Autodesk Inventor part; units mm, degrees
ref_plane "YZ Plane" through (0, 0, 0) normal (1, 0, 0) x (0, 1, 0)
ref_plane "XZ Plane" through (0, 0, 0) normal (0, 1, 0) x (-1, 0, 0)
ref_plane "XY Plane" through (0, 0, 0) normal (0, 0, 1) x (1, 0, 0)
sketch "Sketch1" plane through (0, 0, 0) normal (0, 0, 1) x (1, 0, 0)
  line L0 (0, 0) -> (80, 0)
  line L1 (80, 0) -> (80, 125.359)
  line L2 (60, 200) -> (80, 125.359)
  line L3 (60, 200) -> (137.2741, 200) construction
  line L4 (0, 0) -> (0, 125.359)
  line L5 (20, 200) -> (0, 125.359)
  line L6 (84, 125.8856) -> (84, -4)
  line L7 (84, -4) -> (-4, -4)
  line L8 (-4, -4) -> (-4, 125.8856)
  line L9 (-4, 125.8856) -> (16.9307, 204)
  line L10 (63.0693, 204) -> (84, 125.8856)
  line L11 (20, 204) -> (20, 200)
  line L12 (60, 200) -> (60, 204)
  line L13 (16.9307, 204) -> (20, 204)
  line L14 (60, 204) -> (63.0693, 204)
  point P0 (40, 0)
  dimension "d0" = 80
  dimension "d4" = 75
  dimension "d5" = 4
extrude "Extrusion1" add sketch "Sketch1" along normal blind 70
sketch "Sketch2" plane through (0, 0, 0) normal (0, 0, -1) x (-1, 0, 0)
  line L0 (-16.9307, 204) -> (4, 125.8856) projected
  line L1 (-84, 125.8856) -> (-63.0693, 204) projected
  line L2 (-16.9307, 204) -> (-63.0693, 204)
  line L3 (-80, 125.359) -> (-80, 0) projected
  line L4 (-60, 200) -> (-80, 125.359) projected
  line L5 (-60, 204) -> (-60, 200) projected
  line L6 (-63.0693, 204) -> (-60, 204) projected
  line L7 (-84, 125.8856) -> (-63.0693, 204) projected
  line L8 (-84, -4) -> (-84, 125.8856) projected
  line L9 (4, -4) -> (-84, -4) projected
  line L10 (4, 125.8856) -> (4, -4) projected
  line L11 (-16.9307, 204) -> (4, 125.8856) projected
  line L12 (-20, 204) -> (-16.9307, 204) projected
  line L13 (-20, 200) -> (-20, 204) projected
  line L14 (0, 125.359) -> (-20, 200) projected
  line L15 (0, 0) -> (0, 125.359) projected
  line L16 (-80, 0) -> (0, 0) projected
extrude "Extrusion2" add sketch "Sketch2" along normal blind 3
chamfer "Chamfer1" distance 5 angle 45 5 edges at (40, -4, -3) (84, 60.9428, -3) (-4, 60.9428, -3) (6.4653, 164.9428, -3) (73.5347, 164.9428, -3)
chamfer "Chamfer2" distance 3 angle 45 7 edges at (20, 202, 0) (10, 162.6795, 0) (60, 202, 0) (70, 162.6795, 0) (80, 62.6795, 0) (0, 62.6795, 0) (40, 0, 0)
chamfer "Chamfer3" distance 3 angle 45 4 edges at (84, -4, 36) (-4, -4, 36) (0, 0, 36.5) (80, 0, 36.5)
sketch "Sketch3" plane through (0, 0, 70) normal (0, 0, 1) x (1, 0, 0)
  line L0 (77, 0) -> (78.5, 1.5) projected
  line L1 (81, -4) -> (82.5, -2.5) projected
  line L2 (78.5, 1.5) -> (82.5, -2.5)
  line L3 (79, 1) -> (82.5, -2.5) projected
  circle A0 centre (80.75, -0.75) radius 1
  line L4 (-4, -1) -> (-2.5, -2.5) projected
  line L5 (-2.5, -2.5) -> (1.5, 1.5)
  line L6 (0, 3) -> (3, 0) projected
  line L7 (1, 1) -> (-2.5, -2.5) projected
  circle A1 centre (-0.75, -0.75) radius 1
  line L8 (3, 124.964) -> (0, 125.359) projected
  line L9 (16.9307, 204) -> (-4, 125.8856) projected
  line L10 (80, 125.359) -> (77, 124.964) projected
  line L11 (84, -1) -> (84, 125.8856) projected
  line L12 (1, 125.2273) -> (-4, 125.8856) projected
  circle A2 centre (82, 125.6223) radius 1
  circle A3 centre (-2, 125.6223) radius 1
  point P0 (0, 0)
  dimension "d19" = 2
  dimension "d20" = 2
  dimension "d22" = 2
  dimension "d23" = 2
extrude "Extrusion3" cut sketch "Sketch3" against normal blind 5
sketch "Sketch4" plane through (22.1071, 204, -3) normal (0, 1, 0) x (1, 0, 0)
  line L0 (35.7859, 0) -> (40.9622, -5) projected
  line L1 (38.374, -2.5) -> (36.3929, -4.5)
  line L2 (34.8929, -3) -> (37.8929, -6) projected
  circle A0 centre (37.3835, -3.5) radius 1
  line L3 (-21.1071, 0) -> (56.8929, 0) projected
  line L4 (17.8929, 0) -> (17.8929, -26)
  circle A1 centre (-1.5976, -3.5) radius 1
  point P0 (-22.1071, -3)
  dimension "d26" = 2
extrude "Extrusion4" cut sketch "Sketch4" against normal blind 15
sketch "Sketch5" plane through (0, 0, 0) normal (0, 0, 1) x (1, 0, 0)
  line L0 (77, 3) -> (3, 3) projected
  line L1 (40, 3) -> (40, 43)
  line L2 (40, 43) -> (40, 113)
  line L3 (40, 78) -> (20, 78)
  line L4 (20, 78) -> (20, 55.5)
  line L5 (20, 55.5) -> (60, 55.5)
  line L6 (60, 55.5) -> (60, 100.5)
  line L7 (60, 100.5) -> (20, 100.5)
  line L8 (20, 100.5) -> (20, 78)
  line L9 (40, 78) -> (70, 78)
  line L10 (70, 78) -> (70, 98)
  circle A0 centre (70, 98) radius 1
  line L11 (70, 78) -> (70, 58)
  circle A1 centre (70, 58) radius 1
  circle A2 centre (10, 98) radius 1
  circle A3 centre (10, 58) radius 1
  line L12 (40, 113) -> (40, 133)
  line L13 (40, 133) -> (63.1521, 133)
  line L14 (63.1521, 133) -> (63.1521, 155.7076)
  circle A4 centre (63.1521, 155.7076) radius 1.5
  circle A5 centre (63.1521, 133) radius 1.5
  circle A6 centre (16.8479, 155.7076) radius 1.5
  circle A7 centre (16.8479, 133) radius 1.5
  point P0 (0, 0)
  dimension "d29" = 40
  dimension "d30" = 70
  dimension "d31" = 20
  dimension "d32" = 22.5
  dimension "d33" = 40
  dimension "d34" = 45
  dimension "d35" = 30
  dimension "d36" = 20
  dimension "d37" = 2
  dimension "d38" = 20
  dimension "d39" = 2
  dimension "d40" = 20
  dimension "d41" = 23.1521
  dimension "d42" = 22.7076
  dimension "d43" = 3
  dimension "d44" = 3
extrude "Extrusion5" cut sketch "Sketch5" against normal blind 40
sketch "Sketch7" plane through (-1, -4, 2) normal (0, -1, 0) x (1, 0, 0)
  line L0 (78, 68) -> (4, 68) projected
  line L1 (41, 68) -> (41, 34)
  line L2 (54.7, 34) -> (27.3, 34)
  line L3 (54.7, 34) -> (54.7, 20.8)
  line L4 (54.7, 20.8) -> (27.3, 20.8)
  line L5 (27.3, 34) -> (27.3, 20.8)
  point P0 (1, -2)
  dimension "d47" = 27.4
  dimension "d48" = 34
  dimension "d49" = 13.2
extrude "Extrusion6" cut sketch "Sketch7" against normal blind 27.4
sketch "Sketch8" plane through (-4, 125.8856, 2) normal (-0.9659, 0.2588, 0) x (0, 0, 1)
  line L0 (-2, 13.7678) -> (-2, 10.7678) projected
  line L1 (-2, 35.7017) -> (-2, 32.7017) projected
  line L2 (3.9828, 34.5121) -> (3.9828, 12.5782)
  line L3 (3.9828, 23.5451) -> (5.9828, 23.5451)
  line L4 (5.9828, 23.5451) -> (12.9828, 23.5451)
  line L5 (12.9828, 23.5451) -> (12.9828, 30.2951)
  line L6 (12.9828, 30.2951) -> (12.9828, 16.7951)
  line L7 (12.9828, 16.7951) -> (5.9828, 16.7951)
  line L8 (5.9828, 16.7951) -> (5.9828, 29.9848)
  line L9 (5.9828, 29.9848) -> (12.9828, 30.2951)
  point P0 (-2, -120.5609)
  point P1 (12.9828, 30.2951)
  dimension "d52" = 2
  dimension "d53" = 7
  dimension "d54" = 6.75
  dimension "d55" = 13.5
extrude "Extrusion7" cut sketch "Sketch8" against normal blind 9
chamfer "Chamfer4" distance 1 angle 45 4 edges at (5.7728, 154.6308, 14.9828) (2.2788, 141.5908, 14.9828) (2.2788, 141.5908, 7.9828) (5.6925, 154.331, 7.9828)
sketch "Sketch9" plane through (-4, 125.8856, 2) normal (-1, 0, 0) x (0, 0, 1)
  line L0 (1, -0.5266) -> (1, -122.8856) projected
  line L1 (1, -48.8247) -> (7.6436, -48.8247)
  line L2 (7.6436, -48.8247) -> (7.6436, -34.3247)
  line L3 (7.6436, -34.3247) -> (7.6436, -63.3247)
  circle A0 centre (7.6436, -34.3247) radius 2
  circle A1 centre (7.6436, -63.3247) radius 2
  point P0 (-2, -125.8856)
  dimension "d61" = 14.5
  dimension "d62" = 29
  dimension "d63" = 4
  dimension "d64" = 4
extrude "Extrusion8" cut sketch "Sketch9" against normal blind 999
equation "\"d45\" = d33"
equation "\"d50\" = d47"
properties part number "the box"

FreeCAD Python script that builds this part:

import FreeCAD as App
import Part
import Sketcher

V = App.Vector
Q = App.Units.Quantity


def edges_at(feature, points):
    """Names of the edges that pass closest to the given points."""
    edges = feature.Shape.Edges
    near = lambda p: min(range(len(edges)), key=lambda i: edges[i].distToShape(Part.Vertex(*p))[0])
    return sorted({f"Edge{near(p) + 1}" for p in points})

doc = App.newDocument("Part")
params = doc.addObject("Spreadsheet::Sheet", "Params")
for row, (alias, value) in enumerate([
    ("sketch1_width", "80 mm"),
    ("sketch1_height", "4 mm"),
    ("sketch1_length", "80.87 mm"),
    ("pad1_length", "70 mm"),
    ("sketch2_width", "88 mm"),
    ("sketch2_length", "80.87 mm"),
    ("pad2_length", "3 mm"),
    ("chamfer_size", "5 mm"),
    ("chamfer2_size", "3 mm"),
    ("chamfer3_size", "3 mm"),
    ("sketch3_diameter", "2 mm"),
    ("pocket1_length", "5 mm"),
    ("sketch4_diameter", "2 mm"),
    ("pocket2_length", "15 mm"),
    ("sketch5_diameter", "3 mm"),
    ("sketch5_diameter2", "2 mm"),
    ("sketch5_width", "40 mm"),
    ("sketch5_height", "45 mm"),
    ("pocket3_length", "40 mm"),
    ("sketch6_width", "27.4 mm"),
    ("sketch6_height", "13.2 mm"),
    ("pocket4_length", "27.4 mm"),
    ("sketch7_width", "7 mm"),
    ("sketch7_height", "13.5 mm"),
    ("pocket5_length", "9 mm"),
    ("chamfer4_size", "1 mm"),
    ("sketch8_diameter", "4 mm"),
    ("pocket6_length", "999 mm"),
], start=1):
    params.set(f"A{row}", alias)
    params.set(f"B{row}", "=" + value)
    params.setAlias(f"B{row}", alias)

body = doc.addObject("PartDesign::Body", "Body")

# Sketch on XY plane
sketch1 = body.newObject("Sketcher::SketchObject", "Sketch")
sketch1.AttachmentSupport = (doc.getObject("XY_Plane"), [""])
sketch1.MapMode = "FlatFace"
sketch1.addGeometry([
    Part.LineSegment(V(80, 0, 0), V(0, 0, 0)),  # 0
    Part.LineSegment(V(0, 0, 0), V(0, 125.4, 0)),  # 1
    Part.LineSegment(V(0, 125.4, 0), V(20, 200, 0)),  # 2
    Part.LineSegment(V(20, 200, 0), V(20, 204, 0)),  # 3
    Part.LineSegment(V(20, 204, 0), V(16.9, 204, 0)),  # 4
    Part.LineSegment(V(16.9, 204, 0), V(-4, 125.9, 0)),  # 5
    Part.LineSegment(V(-4, 125.9, 0), V(-4, -4, 0)),  # 6
    Part.LineSegment(V(-4, -4, 0), V(84, -4, 0)),  # 7
    Part.LineSegment(V(84, -4, 0), V(84, 125.9, 0)),  # 8
    Part.LineSegment(V(84, 125.9, 0), V(63.1, 204, 0)),  # 9
    Part.LineSegment(V(63.1, 204, 0), V(60, 204, 0)),  # 10
    Part.LineSegment(V(60, 204, 0), V(60, 200, 0)),  # 11
    Part.LineSegment(V(60, 200, 0), V(80, 125.4, 0)),  # 12
    Part.LineSegment(V(80, 125.4, 0), V(80, 0, 0)),  # 13
], False)
sketch1.addConstraint([
    Sketcher.Constraint("Coincident", 0, 2, 1, 1),
    Sketcher.Constraint("Coincident", 1, 2, 2, 1),
    Sketcher.Constraint("Coincident", 2, 2, 3, 1),
    Sketcher.Constraint("Coincident", 3, 2, 4, 1),
    Sketcher.Constraint("Coincident", 4, 2, 5, 1),
    Sketcher.Constraint("Coincident", 5, 2, 6, 1),
    Sketcher.Constraint("Coincident", 6, 2, 7, 1),
    Sketcher.Constraint("Coincident", 7, 2, 8, 1),
    Sketcher.Constraint("Coincident", 8, 2, 9, 1),
    Sketcher.Constraint("Coincident", 9, 2, 10, 1),
    Sketcher.Constraint("Coincident", 10, 2, 11, 1),
    Sketcher.Constraint("Coincident", 11, 2, 12, 1),
    Sketcher.Constraint("Coincident", 12, 2, 13, 1),
    Sketcher.Constraint("Coincident", 13, 2, 0, 1),
    Sketcher.Constraint("Horizontal", 0),
    Sketcher.Constraint("Vertical", 1),
    Sketcher.Constraint("Vertical", 3),
    Sketcher.Constraint("Horizontal", 4),
    Sketcher.Constraint("Vertical", 6),
    Sketcher.Constraint("Horizontal", 7),
    Sketcher.Constraint("Vertical", 8),
    Sketcher.Constraint("Horizontal", 10),
    Sketcher.Constraint("Vertical", 11),
    Sketcher.Constraint("Vertical", 13),
    Sketcher.Constraint("Coincident", 0, 2, -1, 1),
    Sketcher.Constraint("Parallel", 2, 5),
    Sketcher.Constraint("Parallel", 9, 12),
    Sketcher.Constraint("Horizontal", 5, 2, 8, 2),
    Sketcher.Constraint("Horizontal", 4, 2, 9, 2),
    Sketcher.Constraint("Horizontal", 2, 2, 11, 2),
    Sketcher.Constraint("Horizontal", 1, 2, 12, 2),
    Sketcher.Constraint("Equal", 4, 10),
    Sketcher.Constraint("Equal", 5, 9),
    Sketcher.Constraint("DistanceX", 0, 2, 0, 1, 80.0),
    Sketcher.Constraint("DistanceY", 3, 1, 3, 2, 4.0),
    Sketcher.Constraint("Angle", 2, Q("75 deg")),
    Sketcher.Constraint("DistanceX", 5, 2, -1, 1, 4.0),
    Sketcher.Constraint("DistanceY", 6, 2, -1, 1, 4.0),
    Sketcher.Constraint("DistanceX", -1, 1, 2, 2, 20.0),
    Sketcher.Constraint("DistanceY", -1, 1, 2, 2, 200.0),
    Sketcher.Constraint("Distance", 5, 80.87),
])
sketch1.setExpression("Constraints[33]", "Params.sketch1_width")
sketch1.setExpression("Constraints[34]", "Params.sketch1_height")
sketch1.setExpression("Constraints[40]", "Params.sketch1_length")
pad1 = body.newObject("PartDesign::Pad", "Pad")
pad1.Profile = sketch1
pad1.setExpression("Length", "Params.pad1_length")

# Sketch on XY plane
sketch2 = body.newObject("Sketcher::SketchObject", "Sketch001")
sketch2.AttachmentSupport = (doc.getObject("XY_Plane"), [""])
sketch2.MapMode = "FlatFace"
sketch2.addGeometry([
    Part.LineSegment(V(-4, 126, 0), V(17, 204, 0)),  # 0
    Part.LineSegment(V(17, 204, 0), V(63, 204, 0)),  # 1
    Part.LineSegment(V(63, 204, 0), V(84, 126, 0)),  # 2
    Part.LineSegment(V(84, 126, 0), V(84, -4, 0)),  # 3
    Part.LineSegment(V(84, -4, 0), V(-4, -4, 0)),  # 4
    Part.LineSegment(V(-4, -4, 0), V(-4, 126, 0)),  # 5
], False)
sketch2.addConstraint([
    Sketcher.Constraint("Coincident", 0, 2, 1, 1),
    Sketcher.Constraint("Coincident", 1, 2, 2, 1),
    Sketcher.Constraint("Coincident", 2, 2, 3, 1),
    Sketcher.Constraint("Coincident", 3, 2, 4, 1),
    Sketcher.Constraint("Coincident", 4, 2, 5, 1),
    Sketcher.Constraint("Coincident", 5, 2, 0, 1),
    Sketcher.Constraint("Horizontal", 1),
    Sketcher.Constraint("Vertical", 3),
    Sketcher.Constraint("Horizontal", 4),
    Sketcher.Constraint("Vertical", 5),
    Sketcher.Constraint("Horizontal", 2, 2, 5, 2),
    Sketcher.Constraint("Equal", 0, 2),
    Sketcher.Constraint("DistanceX", 4, 2, 4, 1, 88.0),
    Sketcher.Constraint("Angle", 0, Q("75 deg")),
    Sketcher.Constraint("DistanceY", -1, 1, 0, 2, 204.0),
    Sketcher.Constraint("DistanceX", -1, 1, 2, 2, 84.0),
    Sketcher.Constraint("DistanceY", 3, 2, -1, 1, 4.0),
    Sketcher.Constraint("Distance", 0, 80.87),
])
sketch2.setExpression("Constraints[12]", "Params.sketch2_width")
sketch2.setExpression("Constraints[17]", "Params.sketch2_length")
pad2 = body.newObject("PartDesign::Pad", "Pad001")
pad2.Profile = sketch2
pad2.setExpression("Length", "Params.pad2_length")
pad2.Reversed = True
doc.recompute()

chamfer = body.newObject("PartDesign::Chamfer", "Chamfer")
chamfer.Base = (pad2, edges_at(pad2, [
    (40, -4, -3),
    (84, 60.943, -3),
    (-4, 60.943, -3),
    (6.465, 164.943, -3),
    (73.535, 164.943, -3),
]))
chamfer.setExpression("Size", "Params.chamfer_size")
doc.recompute()

chamfer2 = body.newObject("PartDesign::Chamfer", "Chamfer001")
chamfer2.Base = (chamfer, edges_at(chamfer, [
    (20, 202, 0),
    (10, 162.679, 0),
    (60, 202, 0),
    (70, 162.679, 0),
    (80, 62.679, 0),
    (0, 62.679, 0),
    (40, 0, 0),
]))
chamfer2.setExpression("Size", "Params.chamfer2_size")
doc.recompute()

chamfer3 = body.newObject("PartDesign::Chamfer", "Chamfer002")
chamfer3.Base = (chamfer2, edges_at(chamfer2, [
    (84, -4, 36),
    (-4, -4, 36),
    (0, 0, 36.5),
    (80, 0, 36.5),
]))
chamfer3.setExpression("Size", "Params.chamfer3_size")

# Sketch on XY plane
sketch3 = body.newObject("Sketcher::SketchObject", "Sketch002")
sketch3.AttachmentSupport = (doc.getObject("XY_Plane"), [""])
sketch3.MapMode = "FlatFace"
sketch3.AttachmentOffset = App.Placement(V(0, 0, 70), App.Rotation())
sketch3.addGeometry([
    Part.Circle(V(80.8, -0.8, 0), V(0, 0, 1), 1),
    Part.Circle(V(-0.8, -0.8, 0), V(0, 0, 1), 1),
    Part.Circle(V(-2, 125.6, 0), V(0, 0, 1), 1),
    Part.Circle(V(82, 125.6, 0), V(0, 0, 1), 1),
], False)
sketch3.addConstraint([
    Sketcher.Constraint("Equal", 0, 1),
    Sketcher.Constraint("Equal", 1, 2),
    Sketcher.Constraint("Equal", 2, 3),
    Sketcher.Constraint("Horizontal", 0, 3, 1, 3),
    Sketcher.Constraint("Horizontal", 2, 3, 3, 3),
    Sketcher.Constraint("Diameter", 0, 2.0),
    Sketcher.Constraint("DistanceX", 2, 3, -1, 1, 2.0),
    Sketcher.Constraint("DistanceX", -1, 1, 3, 3, 82.0),
    Sketcher.Constraint("DistanceX", 1, 3, 0, 3, 81.5),
    Sketcher.Constraint("DistanceX", -1, 1, 0, 3, 80.75),
    Sketcher.Constraint("DistanceY", 0, 3, -1, 1, 0.75),
    Sketcher.Constraint("DistanceY", -1, 1, 2, 3, 125.6223),
])
sketch3.setExpression("Constraints[5]", "Params.sketch3_diameter")
pocket1 = body.newObject("PartDesign::Pocket", "Pocket")
pocket1.Profile = sketch3
pocket1.setExpression("Length", "Params.pocket1_length")

# Sketch on XZ plane
sketch4 = body.newObject("Sketcher::SketchObject", "Sketch003")
sketch4.AttachmentSupport = (doc.getObject("XZ_Plane"), [""])
sketch4.MapMode = "FlatFace"
sketch4.AttachmentOffset = App.Placement(V(0, 0, -204), App.Rotation())
sketch4.addGeometry([
    Part.Circle(V(59.5, 0.5, 0), V(0, 0, 1), 1),
    Part.Circle(V(20.5, 0.5, 0), V(0, 0, 1), 1),
], False)
sketch4.addConstraint([
    Sketcher.Constraint("Equal", 0, 1),
    Sketcher.Constraint("Horizontal", 0, 3, 1, 3),
    Sketcher.Constraint("Diameter", 0, 2.0),
    Sketcher.Constraint("DistanceY", -1, 1, 0, 3, 0.5),
    Sketcher.Constraint("DistanceX", 1, 3, 0, 3, 38.981),
    Sketcher.Constraint("DistanceX", -1, 1, 0, 3, 59.4906),
])
sketch4.setExpression("Constraints[2]", "Params.sketch4_diameter")
pocket2 = body.newObject("PartDesign::Pocket", "Pocket001")
pocket2.Profile = sketch4
pocket2.setExpression("Length", "Params.pocket2_length")
pocket2.Reversed = True

# Sketch on XY plane
sketch5 = body.newObject("Sketcher::SketchObject", "Sketch004")
sketch5.AttachmentSupport = (doc.getObject("XY_Plane"), [""])
sketch5.MapMode = "FlatFace"
sketch5.addGeometry([
    Part.LineSegment(V(20, 55.5, 0), V(60, 55.5, 0)),  # 0
    Part.LineSegment(V(60, 55.5, 0), V(60, 100.5, 0)),  # 1
    Part.LineSegment(V(60, 100.5, 0), V(20, 100.5, 0)),  # 2
    Part.LineSegment(V(20, 100.5, 0), V(20, 55.5, 0)),  # 3
    Part.Circle(V(63.2, 155.7, 0), V(0, 0, 1), 1.5),  # 4
    Part.Circle(V(63.2, 133, 0), V(0, 0, 1), 1.5),  # 5
    Part.Circle(V(70, 98, 0), V(0, 0, 1), 1),  # 6
    Part.Circle(V(70, 58, 0), V(0, 0, 1), 1),  # 7
    Part.Circle(V(10, 98, 0), V(0, 0, 1), 1),  # 8
    Part.Circle(V(10, 58, 0), V(0, 0, 1), 1),  # 9
    Part.Circle(V(16.8, 155.7, 0), V(0, 0, 1), 1.5),  # 10
    Part.Circle(V(16.8, 133, 0), V(0, 0, 1), 1.5),  # 11
], False)
sketch5.addConstraint([
    Sketcher.Constraint("Coincident", 0, 2, 1, 1),
    Sketcher.Constraint("Coincident", 1, 2, 2, 1),
    Sketcher.Constraint("Coincident", 2, 2, 3, 1),
    Sketcher.Constraint("Coincident", 3, 2, 0, 1),
    Sketcher.Constraint("Horizontal", 0),
    Sketcher.Constraint("Vertical", 1),
    Sketcher.Constraint("Horizontal", 2),
    Sketcher.Constraint("Vertical", 3),
    Sketcher.Constraint("Equal", 4, 5),
    Sketcher.Constraint("Equal", 6, 7),
    Sketcher.Constraint("Equal", 7, 8),
    Sketcher.Constraint("Equal", 8, 9),
    Sketcher.Constraint("Equal", 5, 10),
    Sketcher.Constraint("Equal", 10, 11),
    Sketcher.Constraint("Horizontal", 6, 3, 8, 3),
    Sketcher.Constraint("Horizontal", 7, 3, 9, 3),
    Sketcher.Constraint("Horizontal", 4, 3, 10, 3),
    Sketcher.Constraint("Horizontal", 5, 3, 11, 3),
    Sketcher.Constraint("Vertical", 4, 3, 5, 3),
    Sketcher.Constraint("Vertical", 6, 3, 7, 3),
    Sketcher.Constraint("Vertical", 8, 3, 9, 3),
    Sketcher.Constraint("Vertical", 10, 3, 11, 3),
    Sketcher.Constraint("Diameter", 4, 3.0),
    Sketcher.Constraint("Diameter", 6, 2.0),
    Sketcher.Constraint("DistanceX", 0, 1, 0, 2, 40.0),
    Sketcher.Constraint("DistanceY", 1, 1, 1, 2, 45.0),
    Sketcher.Constraint("DistanceX", -1, 1, 6, 3, 70.0),
    Sketcher.Constraint("DistanceX", -1, 1, 2, 2, 20.0),
    Sketcher.Constraint("DistanceY", 7, 3, 6, 3, 40.0),
    Sketcher.Constraint("DistanceY", -1, 1, 5, 3, 133.0),
    Sketcher.Constraint("DistanceY", -1, 1, 6, 3, 98.0),
    Sketcher.Constraint("DistanceX", -1, 1, 8, 3, 10.0),
    Sketcher.Constraint("DistanceY", -1, 1, 0, 2, 55.5),
    Sketcher.Constraint("DistanceY", 5, 3, 4, 3, 22.7076),
    Sketcher.Constraint("DistanceX", -1, 1, 4, 3, 63.152),
    Sketcher.Constraint("DistanceX", -1, 1, 10, 3, 16.848),
])
sketch5.setExpression("Constraints[22]", "Params.sketch5_diameter")
sketch5.setExpression("Constraints[23]", "Params.sketch5_diameter2")
sketch5.setExpression("Constraints[24]", "Params.sketch5_width")
sketch5.setExpression("Constraints[25]", "Params.sketch5_height")
pocket3 = body.newObject("PartDesign::Pocket", "Pocket002")
pocket3.Profile = sketch5
pocket3.setExpression("Length", "Params.pocket3_length")

# Sketch on XZ plane
sketch6 = body.newObject("Sketcher::SketchObject", "Sketch005")
sketch6.AttachmentSupport = (doc.getObject("XZ_Plane"), [""])
sketch6.MapMode = "FlatFace"
sketch6.AttachmentOffset = App.Placement(V(0, 0, 4), App.Rotation())
sketch6.addGeometry([
    Part.LineSegment(V(54, 23, 0), V(54, 36, 0)),
    Part.LineSegment(V(54, 36, 0), V(26, 36, 0)),
    Part.LineSegment(V(26, 36, 0), V(26, 23, 0)),
    Part.LineSegment(V(26, 23, 0), V(54, 23, 0)),
], False)
sketch6.addConstraint([
    Sketcher.Constraint("Coincident", 0, 2, 1, 1),
    Sketcher.Constraint("Coincident", 1, 2, 2, 1),
    Sketcher.Constraint("Coincident", 2, 2, 3, 1),
    Sketcher.Constraint("Coincident", 3, 2, 0, 1),
    Sketcher.Constraint("Vertical", 0),
    Sketcher.Constraint("Horizontal", 1),
    Sketcher.Constraint("Vertical", 2),
    Sketcher.Constraint("Horizontal", 3),
    Sketcher.Constraint("DistanceX", 1, 2, 1, 1, 27.4),
    Sketcher.Constraint("DistanceY", 0, 1, 0, 2, 13.2),
    Sketcher.Constraint("DistanceY", -1, 1, 0, 2, 36.0),
    Sketcher.Constraint("DistanceX", -1, 1, 0, 2, 53.7),
])
sketch6.setExpression("Constraints[8]", "Params.sketch6_width")
sketch6.setExpression("Constraints[9]", "Params.sketch6_height")
pocket4 = body.newObject("PartDesign::Pocket", "Pocket003")
pocket4.Profile = sketch6
pocket4.setExpression("Length", "Params.pocket4_length")

# Sketch on an angled plane
sketch7 = body.newObject("Sketcher::SketchObject", "Sketch006")
sketch7.Placement = App.Placement(V(-4, 125.8856, 2), App.Rotation(V(0, 0, 1), V(0.258819045, 0.965925826, 0), V(-0.965925826, 0.258819045, 0), "ZXY"))
sketch7.addGeometry([
    Part.LineSegment(V(6, 30, 0), V(6, 17, 0)),
    Part.LineSegment(V(6, 17, 0), V(13, 17, 0)),
    Part.LineSegment(V(13, 17, 0), V(13, 30, 0)),
    Part.LineSegment(V(13, 30, 0), V(6, 30, 0)),
], False)
sketch7.addConstraint([
    Sketcher.Constraint("Coincident", 0, 2, 1, 1),
    Sketcher.Constraint("Coincident", 1, 2, 2, 1),
    Sketcher.Constraint("Coincident", 2, 2, 3, 1),
    Sketcher.Constraint("Coincident", 3, 2, 0, 1),
    Sketcher.Constraint("Vertical", 0),
    Sketcher.Constraint("Horizontal", 1),
    Sketcher.Constraint("Vertical", 2),
    Sketcher.Constraint("DistanceX", 1, 1, 1, 2, 7.0),
    Sketcher.Constraint("DistanceY", 2, 1, 2, 2, 13.5),
    Sketcher.Constraint("DistanceY", 0, 2, 0, 1, 13.1897),
    Sketcher.Constraint("DistanceY", -1, 1, 0, 2, 16.795),
    Sketcher.Constraint("DistanceX", -1, 1, 0, 2, 5.9828),
])
sketch7.setExpression("Constraints[7]", "Params.sketch7_width")
sketch7.setExpression("Constraints[8]", "Params.sketch7_height")
pocket5 = body.newObject("PartDesign::Pocket", "Pocket004")
pocket5.Profile = sketch7
pocket5.setExpression("Length", "Params.pocket5_length")
doc.recompute()

chamfer4 = body.newObject("PartDesign::Chamfer", "Chamfer003")
chamfer4.Base = (pocket5, edges_at(pocket5, [
    (5.773, 154.631, 14.983),
    (2.279, 141.591, 14.983),
    (2.279, 141.591, 7.983),
    (5.692, 154.331, 7.983),
]))
chamfer4.setExpression("Size", "Params.chamfer4_size")

# Sketch on YZ plane
sketch8 = body.newObject("Sketcher::SketchObject", "Sketch007")
sketch8.AttachmentSupport = (doc.getObject("YZ_Plane"), [""])
sketch8.MapMode = "FlatFace"
sketch8.AttachmentOffset = App.Placement(V(0, 0, -4), App.Rotation())
sketch8.addGeometry([
    Part.Circle(V(91.6, 9.6, 0), V(0, 0, 1), 2),
    Part.Circle(V(62.6, 9.6, 0), V(0, 0, 1), 2),
], False)
sketch8.addConstraint([
    Sketcher.Constraint("Equal", 0, 1),
    Sketcher.Constraint("Horizontal", 0, 3, 1, 3),
    Sketcher.Constraint("Diameter", 0, 4.0),
    Sketcher.Constraint("DistanceX", 1, 3, 0, 3, 29.0),
    Sketcher.Constraint("DistanceX", -1, 1, 0, 3, 91.561),
    Sketcher.Constraint("DistanceY", -1, 1, 0, 3, 9.6436),
])
sketch8.setExpression("Constraints[2]", "Params.sketch8_diameter")
pocket6 = body.newObject("PartDesign::Pocket", "Pocket005")
pocket6.Profile = sketch8
pocket6.setExpression("Length", "Params.pocket6_length")
pocket6.Reversed = True

doc.recompute()
